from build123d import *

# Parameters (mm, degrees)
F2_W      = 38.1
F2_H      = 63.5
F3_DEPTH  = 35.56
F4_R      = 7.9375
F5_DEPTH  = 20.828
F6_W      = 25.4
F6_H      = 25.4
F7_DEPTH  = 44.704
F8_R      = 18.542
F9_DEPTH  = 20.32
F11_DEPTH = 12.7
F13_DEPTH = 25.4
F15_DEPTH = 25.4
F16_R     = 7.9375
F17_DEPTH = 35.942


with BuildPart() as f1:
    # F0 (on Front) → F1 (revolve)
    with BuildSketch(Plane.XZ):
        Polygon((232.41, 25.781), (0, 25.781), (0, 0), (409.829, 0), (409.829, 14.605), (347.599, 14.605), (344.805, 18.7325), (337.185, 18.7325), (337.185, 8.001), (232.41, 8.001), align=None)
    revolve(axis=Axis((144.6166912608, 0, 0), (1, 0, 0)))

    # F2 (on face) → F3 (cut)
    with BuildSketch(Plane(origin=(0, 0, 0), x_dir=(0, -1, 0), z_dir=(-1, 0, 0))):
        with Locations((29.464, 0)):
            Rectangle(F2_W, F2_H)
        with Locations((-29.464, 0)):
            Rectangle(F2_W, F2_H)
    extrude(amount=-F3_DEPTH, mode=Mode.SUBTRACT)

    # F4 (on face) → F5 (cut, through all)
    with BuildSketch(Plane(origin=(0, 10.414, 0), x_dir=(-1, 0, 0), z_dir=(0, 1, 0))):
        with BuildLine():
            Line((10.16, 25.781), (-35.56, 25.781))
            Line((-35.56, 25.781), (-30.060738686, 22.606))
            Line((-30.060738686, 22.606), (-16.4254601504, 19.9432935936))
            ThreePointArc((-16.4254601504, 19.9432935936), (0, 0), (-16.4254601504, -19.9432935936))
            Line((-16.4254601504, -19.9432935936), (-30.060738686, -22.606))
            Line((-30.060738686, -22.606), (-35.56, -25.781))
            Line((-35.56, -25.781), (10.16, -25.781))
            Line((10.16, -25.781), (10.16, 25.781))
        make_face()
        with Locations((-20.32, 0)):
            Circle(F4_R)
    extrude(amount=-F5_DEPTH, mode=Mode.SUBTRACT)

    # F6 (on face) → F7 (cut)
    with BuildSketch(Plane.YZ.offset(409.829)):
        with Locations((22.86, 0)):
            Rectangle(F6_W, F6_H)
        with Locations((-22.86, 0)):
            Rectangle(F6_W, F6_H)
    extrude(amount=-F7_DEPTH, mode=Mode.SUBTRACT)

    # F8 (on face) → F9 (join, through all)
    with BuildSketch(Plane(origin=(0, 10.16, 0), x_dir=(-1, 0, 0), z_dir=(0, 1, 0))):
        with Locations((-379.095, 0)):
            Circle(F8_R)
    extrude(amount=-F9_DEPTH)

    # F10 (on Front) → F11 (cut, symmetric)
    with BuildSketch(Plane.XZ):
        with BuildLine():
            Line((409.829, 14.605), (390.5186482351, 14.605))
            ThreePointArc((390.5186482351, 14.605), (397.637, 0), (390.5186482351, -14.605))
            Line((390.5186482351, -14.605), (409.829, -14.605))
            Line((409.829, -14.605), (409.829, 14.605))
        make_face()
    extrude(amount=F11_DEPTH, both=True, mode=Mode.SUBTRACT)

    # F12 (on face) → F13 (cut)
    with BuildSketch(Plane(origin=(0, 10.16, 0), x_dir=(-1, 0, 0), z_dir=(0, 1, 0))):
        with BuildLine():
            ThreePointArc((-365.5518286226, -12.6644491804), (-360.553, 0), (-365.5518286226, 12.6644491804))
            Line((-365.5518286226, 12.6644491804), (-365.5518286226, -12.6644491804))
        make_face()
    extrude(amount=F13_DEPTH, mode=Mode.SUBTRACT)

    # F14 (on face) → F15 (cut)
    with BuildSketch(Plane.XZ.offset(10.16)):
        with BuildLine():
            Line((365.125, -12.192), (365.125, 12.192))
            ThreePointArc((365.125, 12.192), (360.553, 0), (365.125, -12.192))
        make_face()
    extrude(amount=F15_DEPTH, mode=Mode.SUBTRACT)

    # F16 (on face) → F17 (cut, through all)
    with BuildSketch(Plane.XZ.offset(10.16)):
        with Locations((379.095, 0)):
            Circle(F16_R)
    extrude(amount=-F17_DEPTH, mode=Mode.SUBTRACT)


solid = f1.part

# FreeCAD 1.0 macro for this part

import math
import FreeCAD as App
import Part
import Sketcher
from FreeCAD import Vector
Q = App.Units.Quantity

doc = App.newDocument("Part")
body = doc.addObject("PartDesign::Body", "Body")

sketch1 = doc.addObject("Sketcher::SketchObject", "Sketch")
body.addObject(sketch1)
sketch1.AttachmentSupport = (doc.XZ_Plane, [""])
sketch1.MapMode = "FlatFace"
sketch1.addGeometry([
    Part.LineSegment(Vector(232.4, 25.8, 0), Vector(0, 25.8, 0)),
    Part.LineSegment(Vector(0, 25.8, 0), Vector(0, 0, 0)),
    Part.LineSegment(Vector(0, 0, 0), Vector(409.8, 0, 0)),
    Part.LineSegment(Vector(409.8, 0, 0), Vector(409.8, 14.6, 0)),
    Part.LineSegment(Vector(409.8, 14.6, 0), Vector(347.6, 14.6, 0)),
    Part.LineSegment(Vector(347.6, 14.6, 0), Vector(344.8, 18.7, 0)),
    Part.LineSegment(Vector(344.8, 18.7, 0), Vector(337.2, 18.7, 0)),
    Part.LineSegment(Vector(337.2, 18.7, 0), Vector(337.2, 8, 0)),
    Part.LineSegment(Vector(337.2, 8, 0), Vector(232.4, 8, 0)),
    Part.LineSegment(Vector(232.4, 8, 0), Vector(232.4, 25.8, 0)),
], False)
sketch1.addConstraint([
    Sketcher.Constraint("Coincident", 0, 2, 1, 1),
    Sketcher.Constraint("Coincident", 1, 2, 2, 1),
    Sketcher.Constraint("Coincident", 2, 2, 3, 1),
    Sketcher.Constraint("Coincident", 3, 2, 4, 1),
    Sketcher.Constraint("Coincident", 4, 2, 5, 1),
    Sketcher.Constraint("Coincident", 5, 2, 6, 1),
    Sketcher.Constraint("Coincident", 6, 2, 7, 1),
    Sketcher.Constraint("Coincident", 7, 2, 8, 1),
    Sketcher.Constraint("Coincident", 8, 2, 9, 1),
    Sketcher.Constraint("Coincident", 9, 2, 0, 1),
    Sketcher.Constraint("Horizontal", 0),
    Sketcher.Constraint("Vertical", 1),
    Sketcher.Constraint("Horizontal", 2),
    Sketcher.Constraint("Vertical", 3),
    Sketcher.Constraint("Horizontal", 4),
    Sketcher.Constraint("Horizontal", 6),
    Sketcher.Constraint("Vertical", 7),
    Sketcher.Constraint("Horizontal", 8),
    Sketcher.Constraint("Vertical", 9),
    Sketcher.Constraint("Coincident", 1, 2, -1, 1),
    Sketcher.Constraint("DistanceX", 6, 2, 6, 1, Q("0.3 in")),
    Sketcher.Constraint("DistanceY", 9, 1, 9, 2, Q("0.7 in")),
    Sketcher.Constraint("DistanceX", 0, 2, 0, 1, Q("9.15 in")),
    Sketcher.Constraint("DistanceX", 4, 2, 4, 1, Q("2.45 in")),
    Sketcher.Constraint("DistanceX", 2, 1, 2, 2, Q("16.135 in")),
    Sketcher.Constraint("DistanceX", 8, 2, 8, 1, Q("4.125 in")),
    Sketcher.Constraint("DistanceY", 1, 2, 1, 1, Q("1.015 in")),
    Sketcher.Constraint("DistanceY", 3, 1, 3, 2, Q("0.575 in")),
    Sketcher.Constraint("DistanceY", 7, 2, 7, 1, Q("0.4225 in")),
])
revolution = doc.addObject("PartDesign::Revolution", "Revolution")
body.addObject(revolution)
revolution.Profile = sketch1
revolution.ReferenceAxis = (sketch1, ["H_Axis"])
revolution.Angle = 360

sketch2 = doc.addObject("Sketcher::SketchObject", "Sketch001")
body.addObject(sketch2)
sketch2.AttachmentSupport = (doc.YZ_Plane, [""])
sketch2.MapMode = "FlatFace"
sketch2.addGeometry([
    Part.LineSegment(Vector(-10, 32, 0), Vector(-10, -32, 0)),
    Part.LineSegment(Vector(-10, -32, 0), Vector(-49, -32, 0)),
    Part.LineSegment(Vector(-49, -32, 0), Vector(-49, 32, 0)),
    Part.LineSegment(Vector(-49, 32, 0), Vector(-10, 32, 0)),
    Part.LineSegment(Vector(49, 32, 0), Vector(49, -32, 0)),
    Part.LineSegment(Vector(49, -32, 0), Vector(10, -32, 0)),
    Part.LineSegment(Vector(10, -32, 0), Vector(10, 32, 0)),
    Part.LineSegment(Vector(10, 32, 0), Vector(49, 32, 0)),
], False)
sketch2.addConstraint([
    Sketcher.Constraint("Coincident", 0, 2, 1, 1),
    Sketcher.Constraint("Coincident", 1, 2, 2, 1),
    Sketcher.Constraint("Coincident", 2, 2, 3, 1),
    Sketcher.Constraint("Coincident", 3, 2, 0, 1),
    Sketcher.Constraint("Coincident", 4, 2, 5, 1),
    Sketcher.Constraint("Coincident", 5, 2, 6, 1),
    Sketcher.Constraint("Coincident", 6, 2, 7, 1),
    Sketcher.Constraint("Coincident", 7, 2, 4, 1),
    Sketcher.Constraint("Vertical", 0),
    Sketcher.Constraint("Horizontal", 1),
    Sketcher.Constraint("Vertical", 2),
    Sketcher.Constraint("Horizontal", 3),
    Sketcher.Constraint("Vertical", 4),
    Sketcher.Constraint("Horizontal", 5),
    Sketcher.Constraint("Vertical", 6),
    Sketcher.Constraint("Horizontal", 7),
    Sketcher.Constraint("Symmetric", 2, 2, 4, 2, -1, 1),
    Sketcher.Constraint("Symmetric", 0, 2, 6, 2, -1, 1),
    Sketcher.Constraint("Horizontal", 1, 2, 4, 2),
    Sketcher.Constraint("DistanceX", 1, 2, 1, 1, Q("1.5 in")),
    Sketcher.Constraint("DistanceY", 0, 2, 0, 1, Q("2.5 in")),
    Sketcher.Constraint("DistanceX", 0, 2, -1, 1, Q("0.41 in")),
])
pocket1 = doc.addObject("PartDesign::Pocket", "Pocket")
body.addObject(pocket1)
pocket1.Profile = sketch2
pocket1.Length = Q("1.4 in")
pocket1.Reversed = True

sketch3 = doc.addObject("Sketcher::SketchObject", "Sketch002")
body.addObject(sketch3)
sketch3.AttachmentSupport = (doc.XZ_Plane, [""])
sketch3.MapMode = "FlatFace"
sketch3.AttachmentOffset = App.Placement(Vector(0, 0, -0.41 * 25.4), App.Rotation())
sketch3.addGeometry([
    Part.LineSegment(Vector(-10, 26, 0), Vector(36, 26, 0)),
    Part.LineSegment(Vector(36, 26, 0), Vector(30, 23, 0)),
    Part.LineSegment(Vector(30, 23, 0), Vector(16, 20, 0)),
    Part.ArcOfCircle(Part.Circle(Vector(20, 0, 0), Vector(0, 0, 1), 20), math.radians(101), math.radians(259)),
    Part.LineSegment(Vector(16, -20, 0), Vector(30, -23, 0)),
    Part.LineSegment(Vector(30, -23, 0), Vector(36, -26, 0)),
    Part.LineSegment(Vector(36, -26, 0), Vector(-10, -26, 0)),
    Part.LineSegment(Vector(-10, -26, 0), Vector(-10, 26, 0)),
    Part.Circle(Vector(20, 0, 0), Vector(0, 0, 1), 8),
], False)
sketch3.addConstraint([
    Sketcher.Constraint("Coincident", 0, 2, 1, 1),
    Sketcher.Constraint("Coincident", 1, 2, 2, 1),
    Sketcher.Constraint("Tangent", 2, 2, 3, 1),
    Sketcher.Constraint("Tangent", 3, 2, 4, 1),
    Sketcher.Constraint("Coincident", 4, 2, 5, 1),
    Sketcher.Constraint("Coincident", 5, 2, 6, 1),
    Sketcher.Constraint("Coincident", 6, 2, 7, 1),
    Sketcher.Constraint("Coincident", 7, 2, 0, 1),
    Sketcher.Constraint("Horizontal", 0),
    Sketcher.Constraint("Horizontal", 6),
    Sketcher.Constraint("Vertical", 7),
    Sketcher.Constraint("Coincident", 8, 3, 3, 3),
    Sketcher.Constraint("Symmetric", 2, 2, 3, 2, -1),
    Sketcher.Constraint("Symmetric", 0, 2, 5, 2, -1),
    Sketcher.Constraint("Vertical", 1, 2, 4, 2),
    Sketcher.Constraint("Radius", 3, Q("0.8 in")),
    Sketcher.Constraint("Diameter", 8, Q("0.625 in")),
    Sketcher.Constraint("DistanceX", 0, 1, 0, 2, Q("1.8 in")),
    Sketcher.Constraint("Angle", 1, Q("-150 deg")),
    Sketcher.Constraint("DistanceY", 7, 1, 7, 2, Q("2.03 in")),
    Sketcher.Constraint("DistanceX", -1, 1, 3, 3, Q("0.8 in")),
    Sketcher.Constraint("DistanceX", -1, 1, 0, 2, Q("1.4 in")),
    Sketcher.Constraint("Distance", 1, Q("0.25 in")),
])
pocket2 = doc.addObject("PartDesign::Pocket", "Pocket001")
body.addObject(pocket2)
pocket2.Profile = sketch3
pocket2.Type = "ThroughAll"
pocket2.Reversed = True

sketch4 = doc.addObject("Sketcher::SketchObject", "Sketch003")
body.addObject(sketch4)
sketch4.AttachmentSupport = (doc.YZ_Plane, [""])
sketch4.MapMode = "FlatFace"
sketch4.AttachmentOffset = App.Placement(Vector(0, 0, 16.135 * 25.4), App.Rotation())
sketch4.addGeometry([
    Part.LineSegment(Vector(10, 13, 0), Vector(10, -13, 0)),
    Part.LineSegment(Vector(10, -13, 0), Vector(36, -13, 0)),
    Part.LineSegment(Vector(36, -13, 0), Vector(36, 13, 0)),
    Part.LineSegment(Vector(36, 13, 0), Vector(10, 13, 0)),
    Part.LineSegment(Vector(-36, 13, 0), Vector(-36, -13, 0)),
    Part.LineSegment(Vector(-36, -13, 0), Vector(-10, -13, 0)),
    Part.LineSegment(Vector(-10, -13, 0), Vector(-10, 13, 0)),
    Part.LineSegment(Vector(-10, 13, 0), Vector(-36, 13, 0)),
], False)
sketch4.addConstraint([
    Sketcher.Constraint("Coincident", 0, 2, 1, 1),
    Sketcher.Constraint("Coincident", 1, 2, 2, 1),
    Sketcher.Constraint("Coincident", 2, 2, 3, 1),
    Sketcher.Constraint("Coincident", 3, 2, 0, 1),
    Sketcher.Constraint("Coincident", 4, 2, 5, 1),
    Sketcher.Constraint("Coincident", 5, 2, 6, 1),
    Sketcher.Constraint("Coincident", 6, 2, 7, 1),
    Sketcher.Constraint("Coincident", 7, 2, 4, 1),
    Sketcher.Constraint("Vertical", 0),
    Sketcher.Constraint("Horizontal", 1),
    Sketcher.Constraint("Vertical", 2),
    Sketcher.Constraint("Horizontal", 3),
    Sketcher.Constraint("Vertical", 4),
    Sketcher.Constraint("Horizontal", 5),
    Sketcher.Constraint("Vertical", 6),
    Sketcher.Constraint("Horizontal", 7),
    Sketcher.Constraint("Symmetric", 2, 2, 4, 2, -1, 1),
    Sketcher.Constraint("Symmetric", 0, 2, 6, 2, -1, 1),
    Sketcher.Constraint("Horizontal", 1, 2, 4, 2),
    Sketcher.Constraint("Equal", 7, 0),
    Sketcher.Constraint("DistanceX", 1, 1, 1, 2, Q("1 in")),
    Sketcher.Constraint("DistanceX", -1, 1, 0, 2, Q("0.4 in")),
])
pocket3 = doc.addObject("PartDesign::Pocket", "Pocket002")
body.addObject(pocket3)
pocket3.Profile = sketch4
pocket3.Length = Q("1.76 in")

sketch5 = doc.addObject("Sketcher::SketchObject", "Sketch004")
body.addObject(sketch5)
sketch5.AttachmentSupport = (doc.XZ_Plane, [""])
sketch5.MapMode = "FlatFace"
sketch5.AttachmentOffset = App.Placement(Vector(0, 0, -0.4 * 25.4), App.Rotation())
sketch5.addGeometry(Part.Circle(Vector(379, 0, 0), Vector(0, 0, 1), 19), False)
sketch5.addConstraint([
    Sketcher.Constraint("PointOnObject", 0, 3, -1),
    Sketcher.Constraint("Diameter", 0, Q("1.46 in")),
    Sketcher.Constraint("DistanceX", -1, 1, 0, 3, Q("14.925 in")),
])
pad1 = doc.addObject("PartDesign::Pad", "Pad")
body.addObject(pad1)
pad1.Profile = sketch5
pad1.Type = "UpToLast"

sketch6 = doc.addObject("Sketcher::SketchObject", "Sketch005")
body.addObject(sketch6)
sketch6.AttachmentSupport = (doc.XZ_Plane, [""])
sketch6.MapMode = "FlatFace"
sketch6.addGeometry([
    Part.LineSegment(Vector(410, 15, 0), Vector(391, 15, 0)),
    Part.ArcOfCircle(Part.Circle(Vector(379, 0, 0), Vector(0, 0, 1), 19), math.radians(-52), math.radians(52)),
    Part.LineSegment(Vector(391, -15, 0), Vector(410, -15, 0)),
    Part.LineSegment(Vector(410, -15, 0), Vector(410, 15, 0)),
], False)
sketch6.addConstraint([
    Sketcher.Constraint("Coincident", 0, 2, 1, 2),
    Sketcher.Constraint("Coincident", 1, 1, 2, 1),
    Sketcher.Constraint("Coincident", 2, 2, 3, 1),
    Sketcher.Constraint("Coincident", 3, 2, 0, 1),
    Sketcher.Constraint("Horizontal", 0),
    Sketcher.Constraint("Horizontal", 2),
    Sketcher.Constraint("Vertical", 3),
    Sketcher.Constraint("Symmetric", 0, 2, 1, 1, -1),
    Sketcher.Constraint("Radius", 1, Q("0.73 in")),
    Sketcher.Constraint("DistanceY", 3, 1, 3, 2, Q("1.15 in")),
    Sketcher.Constraint("DistanceX", 1, 3, 2, 2, Q("1.21 in")),
    Sketcher.Constraint("DistanceX", -1, 1, 1, 3, Q("14.925 in")),
])
pocket4 = doc.addObject("PartDesign::Pocket", "Pocket003")
body.addObject(pocket4)
pocket4.Profile = sketch6
pocket4.Length = Q("1 in")
pocket4.Midplane = True

sketch7 = doc.addObject("Sketcher::SketchObject", "Sketch006")
body.addObject(sketch7)
sketch7.AttachmentSupport = (doc.XZ_Plane, [""])
sketch7.MapMode = "FlatFace"
sketch7.AttachmentOffset = App.Placement(Vector(0, 0, -0.4 * 25.4), App.Rotation())
sketch7.addGeometry([
    Part.ArcOfCircle(Part.Circle(Vector(379, 0, 0), Vector(0, 0, 1), 19), math.radians(137), math.radians(223)),
    Part.LineSegment(Vector(366, 13, 0), Vector(366, -13, 0)),
], False)
sketch7.addConstraint([
    Sketcher.Constraint("Coincident", 0, 1, 1, 1),
    Sketcher.Constraint("Coincident", 1, 2, 0, 2),
    Sketcher.Constraint("Vertical", 1),
    Sketcher.Constraint("PointOnObject", 0, 3, -1),
    Sketcher.Constraint("Radius", 0, Q("0.73 in")),
    Sketcher.Constraint("DistanceX", -1, 1, 0, 3, Q("14.925 in")),
    Sketcher.Constraint("DistanceY", 1, 2, 1, 1, Q("25.328898 mm")),
])
pocket5 = doc.addObject("PartDesign::Pocket", "Pocket004")
body.addObject(pocket5)
pocket5.Profile = sketch7
pocket5.Length = Q("1 in")

sketch8 = doc.addObject("Sketcher::SketchObject", "Sketch007")
body.addObject(sketch8)
sketch8.AttachmentSupport = (doc.XZ_Plane, [""])
sketch8.MapMode = "FlatFace"
sketch8.AttachmentOffset = App.Placement(Vector(0, 0, 0.4 * 25.4), App.Rotation())
sketch8.addGeometry([
    Part.LineSegment(Vector(365, -12, 0), Vector(365, 12, 0)),
    Part.ArcOfCircle(Part.Circle(Vector(379, 0, 0), Vector(0, 0, 1), 19), math.radians(139), math.radians(221)),
], False)
sketch8.addConstraint([
    Sketcher.Constraint("Coincident", 0, 1, 1, 2),
    Sketcher.Constraint("Coincident", 1, 1, 0, 2),
    Sketcher.Constraint("Vertical", 0),
    Sketcher.Constraint("PointOnObject", 1, 3, -1),
    Sketcher.Constraint("Radius", 1, Q("0.73 in")),
    Sketcher.Constraint("DistanceY", 0, 1, 0, 2, Q("0.96 in")),
    Sketcher.Constraint("DistanceX", -1, 1, 1, 3, Q("14.925 in")),
])
pocket6 = doc.addObject("PartDesign::Pocket", "Pocket005")
body.addObject(pocket6)
pocket6.Profile = sketch8
pocket6.Length = Q("1 in")
pocket6.Reversed = True

sketch9 = doc.addObject("Sketcher::SketchObject", "Sketch008")
body.addObject(sketch9)
sketch9.AttachmentSupport = (doc.XZ_Plane, [""])
sketch9.MapMode = "FlatFace"
sketch9.AttachmentOffset = App.Placement(Vector(0, 0, 0.4 * 25.4), App.Rotation())
sketch9.addGeometry(Part.Circle(Vector(379, 0, 0), Vector(0, 0, 1), 8), False)
sketch9.addConstraint([
    Sketcher.Constraint("PointOnObject", 0, 3, -1),
    Sketcher.Constraint("Diameter", 0, Q("0.625 in")),
    Sketcher.Constraint("DistanceX", -1, 1, 0, 3, Q("14.925 in")),
])
pocket7 = doc.addObject("PartDesign::Pocket", "Pocket006")
body.addObject(pocket7)
pocket7.Profile = sketch9
pocket7.Type = "ThroughAll"

doc.recompute()
